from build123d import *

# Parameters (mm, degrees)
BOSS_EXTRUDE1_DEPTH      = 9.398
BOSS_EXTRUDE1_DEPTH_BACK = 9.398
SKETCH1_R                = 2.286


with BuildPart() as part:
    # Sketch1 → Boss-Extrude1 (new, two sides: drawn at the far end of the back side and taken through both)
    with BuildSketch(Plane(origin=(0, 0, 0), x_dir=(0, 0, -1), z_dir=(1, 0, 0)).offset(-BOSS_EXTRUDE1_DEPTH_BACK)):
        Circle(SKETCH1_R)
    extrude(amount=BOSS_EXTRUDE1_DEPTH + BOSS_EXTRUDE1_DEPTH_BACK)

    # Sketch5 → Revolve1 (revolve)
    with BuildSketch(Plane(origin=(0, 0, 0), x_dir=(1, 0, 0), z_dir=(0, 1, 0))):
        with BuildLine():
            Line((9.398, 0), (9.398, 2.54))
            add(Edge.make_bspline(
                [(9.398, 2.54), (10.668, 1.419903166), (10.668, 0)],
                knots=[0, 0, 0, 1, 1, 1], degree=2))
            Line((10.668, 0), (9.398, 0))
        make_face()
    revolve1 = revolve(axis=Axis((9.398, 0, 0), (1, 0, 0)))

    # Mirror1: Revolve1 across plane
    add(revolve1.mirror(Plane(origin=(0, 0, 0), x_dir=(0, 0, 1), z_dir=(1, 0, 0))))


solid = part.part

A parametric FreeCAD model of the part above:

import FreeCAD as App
import Part
import Sketcher

V = App.Vector
Q = App.Units.Quantity

doc = App.newDocument("Part")
body = doc.addObject("PartDesign::Body", "Body")

# Sketch on YZ plane
sketch1 = doc.addObject("Sketcher::SketchObject", "Sketch")
body.addObject(sketch1)
sketch1.AttachmentSupport = (doc.YZ_Plane, [""])
sketch1.MapMode = "FlatFace"
sketch1.addGeometry(Part.Circle(V(0, 0, 0), V(0, 0, 1), 2.3), False)
sketch1.addConstraint(Sketcher.Constraint("Coincident", 0, 3, -1, 1))
sketch1.addConstraint(Sketcher.Constraint("Diameter", 0, Q("0.18 in")))
pad1 = doc.addObject("PartDesign::Pad", "Pad")
body.addObject(pad1)
pad1.Profile = sketch1
pad1.Type = "TwoLengths"
pad1.Length = Q("0.37 in")
pad1.Length2 = Q("0.37 in")

# Sketch on XZ plane
sketch2 = doc.addObject("Sketcher::SketchObject", "Sketch001")
body.addObject(sketch2)
sketch2.AttachmentSupport = (doc.XZ_Plane, [""])
sketch2.MapMode = "FlatFace"
sketch2.addGeometry(Part.LineSegment(V(9.398, -2.54, 0), V(9.398, 0, 0)), False)
sketch2.addGeometry(Part.LineSegment(V(9.398, 0, 0), V(10.668, 0, 0)), False)
sketch2.addGeometry(Part.BSplineCurve([V(9.398, -2.54, 0), V(10.668, -1.419903, 0), V(10.668, 0, 0)], [3, 3], [0, 1], False, 2, [1, 1, 1], False), False)
sketch2.addConstraint(Sketcher.Constraint("Block", 2))
sketch2.addConstraint(Sketcher.Constraint("Coincident", 0, 2, 1, 1))
sketch2.addConstraint(Sketcher.Constraint("Coincident", 1, 2, 2, 2))
sketch2.addConstraint(Sketcher.Constraint("Coincident", 2, 1, 0, 1))
sketch2.addConstraint(Sketcher.Constraint("Vertical", 0))
sketch2.addConstraint(Sketcher.Constraint("Horizontal", 1))
revolution = doc.addObject("PartDesign::Revolution", "Revolution")
body.addObject(revolution)
revolution.Profile = sketch2
revolution.ReferenceAxis = (sketch2, ["H_Axis"])
revolution.Angle = 360
doc.recompute()

mirrored = doc.addObject("PartDesign::Mirrored", "Mirrored")
body.addObject(mirrored)
mirrored.Originals = [revolution]
mirrored.MirrorPlane = (doc.YZ_Plane, [""])
body.Tip = mirrored

doc.recompute()
